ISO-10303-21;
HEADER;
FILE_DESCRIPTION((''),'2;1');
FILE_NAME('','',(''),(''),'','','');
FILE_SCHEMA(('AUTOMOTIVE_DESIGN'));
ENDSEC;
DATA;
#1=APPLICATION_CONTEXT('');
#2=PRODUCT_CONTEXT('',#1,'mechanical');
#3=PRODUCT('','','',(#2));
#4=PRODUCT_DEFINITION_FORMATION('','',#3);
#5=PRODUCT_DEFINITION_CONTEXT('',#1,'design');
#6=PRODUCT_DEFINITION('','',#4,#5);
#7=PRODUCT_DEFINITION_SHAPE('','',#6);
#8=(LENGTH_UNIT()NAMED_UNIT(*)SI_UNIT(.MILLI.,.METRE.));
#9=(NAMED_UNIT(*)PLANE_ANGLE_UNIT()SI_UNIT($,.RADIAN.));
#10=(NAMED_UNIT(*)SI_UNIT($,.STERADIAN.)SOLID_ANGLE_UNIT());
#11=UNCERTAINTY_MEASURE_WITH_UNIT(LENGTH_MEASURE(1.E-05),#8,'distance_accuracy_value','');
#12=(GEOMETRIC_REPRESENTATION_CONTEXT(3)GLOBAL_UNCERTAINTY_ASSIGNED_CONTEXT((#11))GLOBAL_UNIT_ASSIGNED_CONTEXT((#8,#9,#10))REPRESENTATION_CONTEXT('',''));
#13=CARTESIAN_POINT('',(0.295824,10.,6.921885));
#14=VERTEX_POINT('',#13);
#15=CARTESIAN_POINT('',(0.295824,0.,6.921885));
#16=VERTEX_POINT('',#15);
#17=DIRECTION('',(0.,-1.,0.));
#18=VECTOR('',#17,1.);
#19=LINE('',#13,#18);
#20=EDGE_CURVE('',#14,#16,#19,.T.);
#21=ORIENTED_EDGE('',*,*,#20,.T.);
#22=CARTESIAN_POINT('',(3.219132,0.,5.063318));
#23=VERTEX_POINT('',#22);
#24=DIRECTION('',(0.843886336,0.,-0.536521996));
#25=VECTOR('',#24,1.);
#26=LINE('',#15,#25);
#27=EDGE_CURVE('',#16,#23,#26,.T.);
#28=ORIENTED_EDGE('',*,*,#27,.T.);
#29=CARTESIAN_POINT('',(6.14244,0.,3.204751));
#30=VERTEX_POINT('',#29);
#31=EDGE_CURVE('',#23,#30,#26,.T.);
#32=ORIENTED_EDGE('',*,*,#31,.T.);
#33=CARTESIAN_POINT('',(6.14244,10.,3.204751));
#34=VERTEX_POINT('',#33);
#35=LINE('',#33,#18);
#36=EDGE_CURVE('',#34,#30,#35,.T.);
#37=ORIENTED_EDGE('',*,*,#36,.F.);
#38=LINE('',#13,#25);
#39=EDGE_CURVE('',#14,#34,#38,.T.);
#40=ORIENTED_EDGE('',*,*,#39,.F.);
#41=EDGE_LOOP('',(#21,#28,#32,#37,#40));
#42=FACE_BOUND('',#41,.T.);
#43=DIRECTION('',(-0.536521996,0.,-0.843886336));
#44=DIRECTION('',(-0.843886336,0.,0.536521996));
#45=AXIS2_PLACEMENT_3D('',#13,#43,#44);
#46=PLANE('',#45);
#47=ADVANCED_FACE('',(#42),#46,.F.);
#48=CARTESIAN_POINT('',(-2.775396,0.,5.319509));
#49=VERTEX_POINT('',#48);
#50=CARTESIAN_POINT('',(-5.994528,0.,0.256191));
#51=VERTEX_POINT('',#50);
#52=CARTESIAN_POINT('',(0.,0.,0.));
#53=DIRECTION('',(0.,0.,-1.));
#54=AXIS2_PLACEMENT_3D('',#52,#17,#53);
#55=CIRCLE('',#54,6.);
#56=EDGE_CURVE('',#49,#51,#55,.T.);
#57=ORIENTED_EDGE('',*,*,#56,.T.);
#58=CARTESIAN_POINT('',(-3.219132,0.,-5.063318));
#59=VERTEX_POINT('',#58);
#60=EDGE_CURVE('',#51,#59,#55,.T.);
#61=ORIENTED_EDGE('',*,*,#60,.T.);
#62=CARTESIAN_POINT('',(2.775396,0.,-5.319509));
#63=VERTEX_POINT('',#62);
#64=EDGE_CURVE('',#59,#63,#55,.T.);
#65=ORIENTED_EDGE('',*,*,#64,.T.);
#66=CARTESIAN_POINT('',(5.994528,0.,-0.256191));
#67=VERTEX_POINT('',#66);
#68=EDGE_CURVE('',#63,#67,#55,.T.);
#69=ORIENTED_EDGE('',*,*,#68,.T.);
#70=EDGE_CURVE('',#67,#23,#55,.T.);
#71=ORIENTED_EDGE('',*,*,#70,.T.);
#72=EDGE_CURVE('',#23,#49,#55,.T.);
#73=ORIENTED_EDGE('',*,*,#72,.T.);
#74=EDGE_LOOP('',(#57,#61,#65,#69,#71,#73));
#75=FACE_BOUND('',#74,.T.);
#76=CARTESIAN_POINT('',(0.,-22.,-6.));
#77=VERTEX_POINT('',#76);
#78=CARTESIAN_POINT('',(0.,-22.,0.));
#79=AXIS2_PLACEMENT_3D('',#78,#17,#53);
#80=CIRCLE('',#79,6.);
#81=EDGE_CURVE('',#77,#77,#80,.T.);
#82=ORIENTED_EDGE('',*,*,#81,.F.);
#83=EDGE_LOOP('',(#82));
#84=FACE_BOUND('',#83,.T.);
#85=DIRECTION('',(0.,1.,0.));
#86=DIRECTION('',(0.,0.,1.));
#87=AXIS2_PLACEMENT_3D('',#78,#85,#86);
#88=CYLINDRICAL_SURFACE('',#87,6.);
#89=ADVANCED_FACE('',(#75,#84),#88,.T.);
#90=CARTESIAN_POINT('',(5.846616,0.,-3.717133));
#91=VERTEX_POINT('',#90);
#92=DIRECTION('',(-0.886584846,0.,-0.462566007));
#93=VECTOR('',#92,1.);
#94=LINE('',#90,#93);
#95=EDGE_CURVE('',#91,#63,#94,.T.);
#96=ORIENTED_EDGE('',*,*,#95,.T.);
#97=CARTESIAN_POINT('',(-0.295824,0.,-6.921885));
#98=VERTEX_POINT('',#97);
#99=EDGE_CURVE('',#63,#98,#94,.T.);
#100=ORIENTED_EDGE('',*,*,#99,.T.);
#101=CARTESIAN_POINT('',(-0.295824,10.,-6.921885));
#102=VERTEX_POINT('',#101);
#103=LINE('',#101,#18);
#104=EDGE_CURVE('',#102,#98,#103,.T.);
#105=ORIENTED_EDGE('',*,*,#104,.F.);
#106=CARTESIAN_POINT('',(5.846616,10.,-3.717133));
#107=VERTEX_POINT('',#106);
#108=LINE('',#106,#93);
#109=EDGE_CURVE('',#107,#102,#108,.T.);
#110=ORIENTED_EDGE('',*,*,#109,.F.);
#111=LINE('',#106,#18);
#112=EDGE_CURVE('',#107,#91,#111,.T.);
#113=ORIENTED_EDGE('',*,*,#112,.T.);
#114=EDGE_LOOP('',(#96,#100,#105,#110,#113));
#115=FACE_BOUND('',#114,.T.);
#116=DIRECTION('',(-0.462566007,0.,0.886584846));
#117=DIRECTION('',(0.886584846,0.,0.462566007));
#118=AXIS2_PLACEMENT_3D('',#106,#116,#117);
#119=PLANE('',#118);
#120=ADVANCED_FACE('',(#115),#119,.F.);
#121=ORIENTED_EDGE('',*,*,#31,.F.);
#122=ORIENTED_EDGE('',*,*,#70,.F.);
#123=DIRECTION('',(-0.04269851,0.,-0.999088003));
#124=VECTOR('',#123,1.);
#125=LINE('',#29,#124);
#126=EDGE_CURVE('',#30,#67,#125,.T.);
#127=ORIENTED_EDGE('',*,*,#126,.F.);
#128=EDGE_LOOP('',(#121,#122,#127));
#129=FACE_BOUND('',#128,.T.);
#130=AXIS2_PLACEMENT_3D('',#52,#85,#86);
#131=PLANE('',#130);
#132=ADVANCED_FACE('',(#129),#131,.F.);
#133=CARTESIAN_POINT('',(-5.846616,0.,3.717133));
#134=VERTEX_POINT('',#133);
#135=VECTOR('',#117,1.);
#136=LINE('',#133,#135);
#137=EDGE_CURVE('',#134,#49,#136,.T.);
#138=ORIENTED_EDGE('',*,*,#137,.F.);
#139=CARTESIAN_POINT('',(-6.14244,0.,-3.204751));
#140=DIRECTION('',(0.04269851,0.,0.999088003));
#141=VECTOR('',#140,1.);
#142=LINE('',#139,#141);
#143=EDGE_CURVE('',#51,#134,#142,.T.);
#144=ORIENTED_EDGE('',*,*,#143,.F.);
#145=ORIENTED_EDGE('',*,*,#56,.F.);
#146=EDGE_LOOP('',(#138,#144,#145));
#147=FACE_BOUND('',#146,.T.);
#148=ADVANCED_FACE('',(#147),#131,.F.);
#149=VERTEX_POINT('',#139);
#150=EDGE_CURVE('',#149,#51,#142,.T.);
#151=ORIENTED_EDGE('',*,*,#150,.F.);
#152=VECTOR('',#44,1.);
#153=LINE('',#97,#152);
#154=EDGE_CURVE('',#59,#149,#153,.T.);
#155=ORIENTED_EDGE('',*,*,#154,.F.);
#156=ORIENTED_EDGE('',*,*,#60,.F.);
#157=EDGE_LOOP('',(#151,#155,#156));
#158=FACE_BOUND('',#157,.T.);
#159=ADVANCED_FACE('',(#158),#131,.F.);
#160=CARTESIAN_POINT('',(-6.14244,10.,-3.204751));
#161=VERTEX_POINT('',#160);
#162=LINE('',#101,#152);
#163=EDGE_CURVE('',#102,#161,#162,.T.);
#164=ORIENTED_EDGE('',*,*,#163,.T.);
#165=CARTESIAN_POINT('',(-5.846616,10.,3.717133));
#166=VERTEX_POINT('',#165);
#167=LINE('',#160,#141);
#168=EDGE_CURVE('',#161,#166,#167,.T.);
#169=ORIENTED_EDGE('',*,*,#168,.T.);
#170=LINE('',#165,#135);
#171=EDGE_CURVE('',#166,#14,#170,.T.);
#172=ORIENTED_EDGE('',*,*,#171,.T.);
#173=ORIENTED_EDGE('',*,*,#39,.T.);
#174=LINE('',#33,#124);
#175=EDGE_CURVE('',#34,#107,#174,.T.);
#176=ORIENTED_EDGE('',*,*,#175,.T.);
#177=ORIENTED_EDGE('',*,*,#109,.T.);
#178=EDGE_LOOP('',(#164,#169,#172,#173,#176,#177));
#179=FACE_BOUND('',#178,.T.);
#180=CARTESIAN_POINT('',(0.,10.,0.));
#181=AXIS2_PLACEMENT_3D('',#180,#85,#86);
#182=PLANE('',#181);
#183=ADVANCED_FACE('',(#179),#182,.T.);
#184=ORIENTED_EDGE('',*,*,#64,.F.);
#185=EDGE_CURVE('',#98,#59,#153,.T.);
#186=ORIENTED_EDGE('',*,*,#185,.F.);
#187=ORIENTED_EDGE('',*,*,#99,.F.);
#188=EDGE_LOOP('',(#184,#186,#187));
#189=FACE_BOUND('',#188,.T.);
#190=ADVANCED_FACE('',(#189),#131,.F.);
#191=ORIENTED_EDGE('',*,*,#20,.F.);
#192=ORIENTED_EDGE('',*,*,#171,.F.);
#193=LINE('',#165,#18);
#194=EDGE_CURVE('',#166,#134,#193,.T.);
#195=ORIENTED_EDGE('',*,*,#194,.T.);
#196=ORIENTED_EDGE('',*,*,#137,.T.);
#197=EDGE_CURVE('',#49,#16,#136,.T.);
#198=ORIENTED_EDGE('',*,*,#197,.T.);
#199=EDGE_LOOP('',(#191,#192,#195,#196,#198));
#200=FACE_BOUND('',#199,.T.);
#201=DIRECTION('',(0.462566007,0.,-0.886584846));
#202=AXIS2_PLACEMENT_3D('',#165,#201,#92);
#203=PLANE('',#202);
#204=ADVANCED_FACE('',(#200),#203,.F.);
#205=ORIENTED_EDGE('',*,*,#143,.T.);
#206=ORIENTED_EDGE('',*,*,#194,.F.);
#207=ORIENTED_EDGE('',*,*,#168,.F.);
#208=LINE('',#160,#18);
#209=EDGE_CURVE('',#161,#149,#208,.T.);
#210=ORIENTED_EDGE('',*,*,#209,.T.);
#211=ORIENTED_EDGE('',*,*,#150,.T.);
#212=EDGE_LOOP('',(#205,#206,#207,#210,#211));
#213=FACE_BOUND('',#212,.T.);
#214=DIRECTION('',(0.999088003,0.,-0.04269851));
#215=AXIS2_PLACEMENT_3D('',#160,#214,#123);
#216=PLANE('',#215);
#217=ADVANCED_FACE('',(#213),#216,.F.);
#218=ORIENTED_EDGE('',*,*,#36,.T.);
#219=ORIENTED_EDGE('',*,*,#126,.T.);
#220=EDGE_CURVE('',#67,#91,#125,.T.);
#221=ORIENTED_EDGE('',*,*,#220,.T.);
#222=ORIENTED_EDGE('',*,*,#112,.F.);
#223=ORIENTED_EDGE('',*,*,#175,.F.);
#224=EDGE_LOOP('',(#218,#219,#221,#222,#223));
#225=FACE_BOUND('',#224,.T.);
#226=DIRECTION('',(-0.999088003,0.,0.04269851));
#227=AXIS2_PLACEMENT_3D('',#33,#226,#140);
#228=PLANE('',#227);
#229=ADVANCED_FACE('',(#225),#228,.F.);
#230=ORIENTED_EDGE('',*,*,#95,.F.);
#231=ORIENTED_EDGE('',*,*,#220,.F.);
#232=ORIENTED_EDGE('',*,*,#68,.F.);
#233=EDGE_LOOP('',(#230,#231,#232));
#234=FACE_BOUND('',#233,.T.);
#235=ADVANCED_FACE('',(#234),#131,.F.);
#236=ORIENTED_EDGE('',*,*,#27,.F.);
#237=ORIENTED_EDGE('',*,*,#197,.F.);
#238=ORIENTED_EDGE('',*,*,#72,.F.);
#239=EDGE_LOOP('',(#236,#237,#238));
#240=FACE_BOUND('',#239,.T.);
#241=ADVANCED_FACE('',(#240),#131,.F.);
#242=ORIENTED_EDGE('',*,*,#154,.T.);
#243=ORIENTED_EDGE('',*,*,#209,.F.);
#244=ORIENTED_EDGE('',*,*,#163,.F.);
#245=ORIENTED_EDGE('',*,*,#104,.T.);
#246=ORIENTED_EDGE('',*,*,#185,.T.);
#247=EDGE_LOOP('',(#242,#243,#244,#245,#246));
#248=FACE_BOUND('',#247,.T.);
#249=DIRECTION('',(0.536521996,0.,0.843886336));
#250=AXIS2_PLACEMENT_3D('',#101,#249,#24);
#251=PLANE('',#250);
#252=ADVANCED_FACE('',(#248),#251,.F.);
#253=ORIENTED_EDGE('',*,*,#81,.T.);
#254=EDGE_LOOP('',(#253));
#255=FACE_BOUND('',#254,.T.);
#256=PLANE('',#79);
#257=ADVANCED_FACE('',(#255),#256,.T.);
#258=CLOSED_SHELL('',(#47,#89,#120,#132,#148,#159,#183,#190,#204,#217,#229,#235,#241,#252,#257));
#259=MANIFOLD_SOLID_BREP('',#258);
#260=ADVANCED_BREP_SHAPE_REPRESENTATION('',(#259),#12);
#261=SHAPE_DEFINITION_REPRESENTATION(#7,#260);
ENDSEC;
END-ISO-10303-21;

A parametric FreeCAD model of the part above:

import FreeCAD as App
import Part
import Sketcher
from FreeCAD import Vector

doc = App.newDocument("Part")
body = doc.addObject("PartDesign::Body", "Body")

# Sketch on XZ plane
sketch1 = body.newObject("Sketcher::SketchObject", "Sketch")
sketch1.AttachmentSupport = (doc.getObject("XZ_Plane"), [""])
sketch1.MapMode = "FlatFace"
sketch1.addGeometry([
    Part.LineSegment(Vector(6.14244, 3.204751, 0), Vector(5.846616, -3.717133, 0)),  # 0
    Part.LineSegment(Vector(5.846616, -3.717133, 0), Vector(-0.295824, -6.921885, 0)),  # 1
    Part.LineSegment(Vector(-0.295824, -6.921885, 0), Vector(-6.14244, -3.204751, 0)),  # 2
    Part.LineSegment(Vector(-6.14244, -3.204751, 0), Vector(-5.846616, 3.717133, 0)),  # 3
    Part.LineSegment(Vector(-5.846616, 3.717133, 0), Vector(0.295824, 6.921885, 0)),  # 4
    Part.LineSegment(Vector(0.295824, 6.921885, 0), Vector(6.14244, 3.204751, 0)),  # 5
], False)
sketch1.addConstraint([
    Sketcher.Constraint("Coincident", 0, 2, 1, 1),
    Sketcher.Constraint("Coincident", 1, 2, 2, 1),
    Sketcher.Constraint("Coincident", 2, 2, 3, 1),
    Sketcher.Constraint("Coincident", 3, 2, 4, 1),
    Sketcher.Constraint("Coincident", 4, 2, 5, 1),
    Sketcher.Constraint("Coincident", 5, 2, 0, 1),
    Sketcher.Constraint("Symmetric", 0, 2, 3, 2, -1, 1),
    Sketcher.Constraint("Symmetric", 1, 2, 4, 2, -1, 1),
    Sketcher.Constraint("Symmetric", 2, 2, 5, 2, -1, 1),
    Sketcher.Constraint("Equal", 0, 1),
    Sketcher.Constraint("Equal", 1, 2),
    Sketcher.Constraint("DistanceX", 2, 2, -1, 1, 6.14244),
    Sketcher.Constraint("DistanceY", 2, 2, -1, 1, 3.204751),
    Sketcher.Constraint("DistanceX", 1, 2, 0, 2, 6.14244),
    Sketcher.Constraint("DistanceY", 1, 2, 0, 2, 3.204751),
])
pad1 = body.newObject("PartDesign::Pad", "Pad")
pad1.Profile = sketch1
pad1.Length = 10
pad1.Reversed = True

# Sketch on XZ plane
sketch2 = body.newObject("Sketcher::SketchObject", "Sketch001")
sketch2.AttachmentSupport = (doc.getObject("XZ_Plane"), [""])
sketch2.MapMode = "FlatFace"
sketch2.addGeometry(Part.Circle(Vector(0, 0, 0), Vector(0, 0, 1), 6), False)
sketch2.addConstraint([
    Sketcher.Constraint("Coincident", 0, 3, -1, 1),
    Sketcher.Constraint("Diameter", 0, 12.0),
])
pad2 = body.newObject("PartDesign::Pad", "Pad001")
pad2.Profile = sketch2
pad2.Length = 22

doc.recompute()
